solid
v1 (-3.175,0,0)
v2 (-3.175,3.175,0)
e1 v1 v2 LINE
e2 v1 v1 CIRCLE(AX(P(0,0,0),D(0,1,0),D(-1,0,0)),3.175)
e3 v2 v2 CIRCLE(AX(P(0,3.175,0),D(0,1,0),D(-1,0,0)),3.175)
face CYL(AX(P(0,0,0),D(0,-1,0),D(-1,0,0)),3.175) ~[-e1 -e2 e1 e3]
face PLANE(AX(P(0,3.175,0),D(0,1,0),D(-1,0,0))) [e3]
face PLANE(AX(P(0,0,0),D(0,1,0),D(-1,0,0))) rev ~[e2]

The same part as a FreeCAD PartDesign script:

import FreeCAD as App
import Part
import Sketcher
Q = App.Units.Quantity

doc = App.newDocument("Part")
body = doc.addObject("PartDesign::Body", "Body")

sketch1 = body.newObject("Sketcher::SketchObject", "Sketch")
sketch1.AttachmentSupport = (doc.getObject("XZ_Plane"), [""])
sketch1.MapMode = "FlatFace"
sketch1.addGeometry(Part.Circle(App.Vector(0, 0, 0), App.Vector(0, 0, 1), 3.2), False)
sketch1.addConstraint([
    Sketcher.Constraint("Coincident", 0, 3, -1, 1),
    Sketcher.Constraint("Diameter", 0, Q("0.25 in")),
])
pad1 = body.newObject("PartDesign::Pad", "Pad")
pad1.Profile = sketch1
pad1.Length = Q("0.125 in")
pad1.Reversed = True

doc.recompute()
